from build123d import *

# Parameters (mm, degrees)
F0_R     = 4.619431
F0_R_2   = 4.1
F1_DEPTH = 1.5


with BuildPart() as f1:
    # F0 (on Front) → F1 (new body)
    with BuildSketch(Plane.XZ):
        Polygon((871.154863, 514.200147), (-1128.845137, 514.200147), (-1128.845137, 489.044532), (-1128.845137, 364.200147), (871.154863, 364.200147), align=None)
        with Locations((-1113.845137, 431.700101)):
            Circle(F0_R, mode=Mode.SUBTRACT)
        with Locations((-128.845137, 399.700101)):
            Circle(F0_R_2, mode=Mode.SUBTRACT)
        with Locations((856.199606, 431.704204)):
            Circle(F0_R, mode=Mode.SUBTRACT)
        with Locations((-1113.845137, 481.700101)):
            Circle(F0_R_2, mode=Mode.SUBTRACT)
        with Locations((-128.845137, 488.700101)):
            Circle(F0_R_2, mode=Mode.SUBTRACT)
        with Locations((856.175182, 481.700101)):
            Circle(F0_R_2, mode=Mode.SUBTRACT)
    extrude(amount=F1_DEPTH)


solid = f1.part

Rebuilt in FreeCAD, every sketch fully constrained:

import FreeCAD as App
import Part
import Sketcher

V = App.Vector
Q = App.Units.Quantity


def add_polygon(sketch, points):
    """Adds a closed chain of lines whose ends are joined by coincident constraints."""
    first, n = sketch.GeometryCount, len(points)
    for a, b in zip(points, points[1:] + points[:1]):
        sketch.addGeometry(Part.LineSegment(App.Vector(*a, 0), App.Vector(*b, 0)), False)
    for i in range(n):
        sketch.addConstraint(Sketcher.Constraint("Coincident", first + i, 2, first + (i + 1) % n, 1))

doc = App.newDocument("Part")
body = doc.addObject("PartDesign::Body", "Body")

sketch1 = body.newObject("Sketcher::SketchObject", "Sketch")
sketch1.AttachmentSupport = (doc.getObject("XZ_Plane"), [""])
sketch1.MapMode = "FlatFace"
add_polygon(sketch1, [(871.154863, 514.200147), (-1128.845137, 514.200147), (-1128.845137, 364.200147), (871.154863, 364.200147)])
sketch1.addGeometry(Part.Circle(V(-128.845137, 399.700101, 0), V(0, 0, 1), 4.1), False)
sketch1.addGeometry(Part.Circle(V(-1113.845137, 431.700101, 0), V(0, 0, 1), 4.619431), False)
sketch1.addGeometry(Part.Circle(V(856.199606, 431.704204, 0), V(0, 0, 1), 4.619431), False)
sketch1.addGeometry(Part.Circle(V(-1113.845137, 481.700101, 0), V(0, 0, 1), 4.1), False)
sketch1.addGeometry(Part.Circle(V(-128.845137, 488.700101, 0), V(0, 0, 1), 4.1), False)
sketch1.addGeometry(Part.Circle(V(856.175182, 481.700101, 0), V(0, 0, 1), 4.1), False)
sketch1.addConstraint(Sketcher.Constraint("Horizontal", 0))
sketch1.addConstraint(Sketcher.Constraint("Vertical", 1))
sketch1.addConstraint(Sketcher.Constraint("Horizontal", 2))
sketch1.addConstraint(Sketcher.Constraint("Vertical", 3))
sketch1.addConstraint(Sketcher.Constraint("Equal", 5, 6))
sketch1.addConstraint(Sketcher.Constraint("Equal", 4, 7))
sketch1.addConstraint(Sketcher.Constraint("Equal", 7, 8))
sketch1.addConstraint(Sketcher.Constraint("Equal", 8, 9))
sketch1.addConstraint(Sketcher.Constraint("Horizontal", 7, 3, 9, 3))
sketch1.addConstraint(Sketcher.Constraint("Vertical", 5, 3, 7, 3))
sketch1.addConstraint(Sketcher.Constraint("Vertical", 4, 3, 8, 3))
sketch1.addConstraint(Sketcher.Constraint("Diameter", 4, Q("8.2 mm")))
sketch1.addConstraint(Sketcher.Constraint("DistanceX", 0, 2, 0, 1, Q("2000 mm")))
sketch1.addConstraint(Sketcher.Constraint("DistanceY", 1, 2, 1, 1, Q("150 mm")))
sketch1.addConstraint(Sketcher.Constraint("DistanceX", 5, 3, 4, 3, Q("985 mm")))
sketch1.addConstraint(Sketcher.Constraint("DistanceY", 4, 3, 5, 3, Q("32 mm")))
sketch1.addConstraint(Sketcher.Constraint("DistanceY", 5, 3, 7, 3, Q("50 mm")))
sketch1.addConstraint(Sketcher.Constraint("DistanceY", 4, 3, 8, 3, Q("89 mm")))
sketch1.addConstraint(Sketcher.Constraint("DistanceX", 0, 2, 7, 3, Q("15 mm")))
sketch1.addConstraint(Sketcher.Constraint("Diameter", 5, Q("9.238862 mm")))
sketch1.addConstraint(Sketcher.Constraint("DistanceY", -1, 1, 4, 3, Q("399.700101 mm")))
sketch1.addConstraint(Sketcher.Constraint("DistanceX", -1, 1, 9, 3, Q("856.175182 mm")))
sketch1.addConstraint(Sketcher.Constraint("DistanceX", 8, 3, 9, 3, Q("985.020319 mm")))
sketch1.addConstraint(Sketcher.Constraint("DistanceX", -1, 1, 6, 3, Q("856.199606 mm")))
sketch1.addConstraint(Sketcher.Constraint("DistanceY", -1, 1, 6, 3, Q("431.704204 mm")))
sketch1.addConstraint(Sketcher.Constraint("DistanceY", -1, 1, 0, 2, Q("514.200147 mm")))
pad1 = body.newObject("PartDesign::Pad", "Pad")
pad1.Profile = sketch1
pad1.Length = 1.5

doc.recompute()
